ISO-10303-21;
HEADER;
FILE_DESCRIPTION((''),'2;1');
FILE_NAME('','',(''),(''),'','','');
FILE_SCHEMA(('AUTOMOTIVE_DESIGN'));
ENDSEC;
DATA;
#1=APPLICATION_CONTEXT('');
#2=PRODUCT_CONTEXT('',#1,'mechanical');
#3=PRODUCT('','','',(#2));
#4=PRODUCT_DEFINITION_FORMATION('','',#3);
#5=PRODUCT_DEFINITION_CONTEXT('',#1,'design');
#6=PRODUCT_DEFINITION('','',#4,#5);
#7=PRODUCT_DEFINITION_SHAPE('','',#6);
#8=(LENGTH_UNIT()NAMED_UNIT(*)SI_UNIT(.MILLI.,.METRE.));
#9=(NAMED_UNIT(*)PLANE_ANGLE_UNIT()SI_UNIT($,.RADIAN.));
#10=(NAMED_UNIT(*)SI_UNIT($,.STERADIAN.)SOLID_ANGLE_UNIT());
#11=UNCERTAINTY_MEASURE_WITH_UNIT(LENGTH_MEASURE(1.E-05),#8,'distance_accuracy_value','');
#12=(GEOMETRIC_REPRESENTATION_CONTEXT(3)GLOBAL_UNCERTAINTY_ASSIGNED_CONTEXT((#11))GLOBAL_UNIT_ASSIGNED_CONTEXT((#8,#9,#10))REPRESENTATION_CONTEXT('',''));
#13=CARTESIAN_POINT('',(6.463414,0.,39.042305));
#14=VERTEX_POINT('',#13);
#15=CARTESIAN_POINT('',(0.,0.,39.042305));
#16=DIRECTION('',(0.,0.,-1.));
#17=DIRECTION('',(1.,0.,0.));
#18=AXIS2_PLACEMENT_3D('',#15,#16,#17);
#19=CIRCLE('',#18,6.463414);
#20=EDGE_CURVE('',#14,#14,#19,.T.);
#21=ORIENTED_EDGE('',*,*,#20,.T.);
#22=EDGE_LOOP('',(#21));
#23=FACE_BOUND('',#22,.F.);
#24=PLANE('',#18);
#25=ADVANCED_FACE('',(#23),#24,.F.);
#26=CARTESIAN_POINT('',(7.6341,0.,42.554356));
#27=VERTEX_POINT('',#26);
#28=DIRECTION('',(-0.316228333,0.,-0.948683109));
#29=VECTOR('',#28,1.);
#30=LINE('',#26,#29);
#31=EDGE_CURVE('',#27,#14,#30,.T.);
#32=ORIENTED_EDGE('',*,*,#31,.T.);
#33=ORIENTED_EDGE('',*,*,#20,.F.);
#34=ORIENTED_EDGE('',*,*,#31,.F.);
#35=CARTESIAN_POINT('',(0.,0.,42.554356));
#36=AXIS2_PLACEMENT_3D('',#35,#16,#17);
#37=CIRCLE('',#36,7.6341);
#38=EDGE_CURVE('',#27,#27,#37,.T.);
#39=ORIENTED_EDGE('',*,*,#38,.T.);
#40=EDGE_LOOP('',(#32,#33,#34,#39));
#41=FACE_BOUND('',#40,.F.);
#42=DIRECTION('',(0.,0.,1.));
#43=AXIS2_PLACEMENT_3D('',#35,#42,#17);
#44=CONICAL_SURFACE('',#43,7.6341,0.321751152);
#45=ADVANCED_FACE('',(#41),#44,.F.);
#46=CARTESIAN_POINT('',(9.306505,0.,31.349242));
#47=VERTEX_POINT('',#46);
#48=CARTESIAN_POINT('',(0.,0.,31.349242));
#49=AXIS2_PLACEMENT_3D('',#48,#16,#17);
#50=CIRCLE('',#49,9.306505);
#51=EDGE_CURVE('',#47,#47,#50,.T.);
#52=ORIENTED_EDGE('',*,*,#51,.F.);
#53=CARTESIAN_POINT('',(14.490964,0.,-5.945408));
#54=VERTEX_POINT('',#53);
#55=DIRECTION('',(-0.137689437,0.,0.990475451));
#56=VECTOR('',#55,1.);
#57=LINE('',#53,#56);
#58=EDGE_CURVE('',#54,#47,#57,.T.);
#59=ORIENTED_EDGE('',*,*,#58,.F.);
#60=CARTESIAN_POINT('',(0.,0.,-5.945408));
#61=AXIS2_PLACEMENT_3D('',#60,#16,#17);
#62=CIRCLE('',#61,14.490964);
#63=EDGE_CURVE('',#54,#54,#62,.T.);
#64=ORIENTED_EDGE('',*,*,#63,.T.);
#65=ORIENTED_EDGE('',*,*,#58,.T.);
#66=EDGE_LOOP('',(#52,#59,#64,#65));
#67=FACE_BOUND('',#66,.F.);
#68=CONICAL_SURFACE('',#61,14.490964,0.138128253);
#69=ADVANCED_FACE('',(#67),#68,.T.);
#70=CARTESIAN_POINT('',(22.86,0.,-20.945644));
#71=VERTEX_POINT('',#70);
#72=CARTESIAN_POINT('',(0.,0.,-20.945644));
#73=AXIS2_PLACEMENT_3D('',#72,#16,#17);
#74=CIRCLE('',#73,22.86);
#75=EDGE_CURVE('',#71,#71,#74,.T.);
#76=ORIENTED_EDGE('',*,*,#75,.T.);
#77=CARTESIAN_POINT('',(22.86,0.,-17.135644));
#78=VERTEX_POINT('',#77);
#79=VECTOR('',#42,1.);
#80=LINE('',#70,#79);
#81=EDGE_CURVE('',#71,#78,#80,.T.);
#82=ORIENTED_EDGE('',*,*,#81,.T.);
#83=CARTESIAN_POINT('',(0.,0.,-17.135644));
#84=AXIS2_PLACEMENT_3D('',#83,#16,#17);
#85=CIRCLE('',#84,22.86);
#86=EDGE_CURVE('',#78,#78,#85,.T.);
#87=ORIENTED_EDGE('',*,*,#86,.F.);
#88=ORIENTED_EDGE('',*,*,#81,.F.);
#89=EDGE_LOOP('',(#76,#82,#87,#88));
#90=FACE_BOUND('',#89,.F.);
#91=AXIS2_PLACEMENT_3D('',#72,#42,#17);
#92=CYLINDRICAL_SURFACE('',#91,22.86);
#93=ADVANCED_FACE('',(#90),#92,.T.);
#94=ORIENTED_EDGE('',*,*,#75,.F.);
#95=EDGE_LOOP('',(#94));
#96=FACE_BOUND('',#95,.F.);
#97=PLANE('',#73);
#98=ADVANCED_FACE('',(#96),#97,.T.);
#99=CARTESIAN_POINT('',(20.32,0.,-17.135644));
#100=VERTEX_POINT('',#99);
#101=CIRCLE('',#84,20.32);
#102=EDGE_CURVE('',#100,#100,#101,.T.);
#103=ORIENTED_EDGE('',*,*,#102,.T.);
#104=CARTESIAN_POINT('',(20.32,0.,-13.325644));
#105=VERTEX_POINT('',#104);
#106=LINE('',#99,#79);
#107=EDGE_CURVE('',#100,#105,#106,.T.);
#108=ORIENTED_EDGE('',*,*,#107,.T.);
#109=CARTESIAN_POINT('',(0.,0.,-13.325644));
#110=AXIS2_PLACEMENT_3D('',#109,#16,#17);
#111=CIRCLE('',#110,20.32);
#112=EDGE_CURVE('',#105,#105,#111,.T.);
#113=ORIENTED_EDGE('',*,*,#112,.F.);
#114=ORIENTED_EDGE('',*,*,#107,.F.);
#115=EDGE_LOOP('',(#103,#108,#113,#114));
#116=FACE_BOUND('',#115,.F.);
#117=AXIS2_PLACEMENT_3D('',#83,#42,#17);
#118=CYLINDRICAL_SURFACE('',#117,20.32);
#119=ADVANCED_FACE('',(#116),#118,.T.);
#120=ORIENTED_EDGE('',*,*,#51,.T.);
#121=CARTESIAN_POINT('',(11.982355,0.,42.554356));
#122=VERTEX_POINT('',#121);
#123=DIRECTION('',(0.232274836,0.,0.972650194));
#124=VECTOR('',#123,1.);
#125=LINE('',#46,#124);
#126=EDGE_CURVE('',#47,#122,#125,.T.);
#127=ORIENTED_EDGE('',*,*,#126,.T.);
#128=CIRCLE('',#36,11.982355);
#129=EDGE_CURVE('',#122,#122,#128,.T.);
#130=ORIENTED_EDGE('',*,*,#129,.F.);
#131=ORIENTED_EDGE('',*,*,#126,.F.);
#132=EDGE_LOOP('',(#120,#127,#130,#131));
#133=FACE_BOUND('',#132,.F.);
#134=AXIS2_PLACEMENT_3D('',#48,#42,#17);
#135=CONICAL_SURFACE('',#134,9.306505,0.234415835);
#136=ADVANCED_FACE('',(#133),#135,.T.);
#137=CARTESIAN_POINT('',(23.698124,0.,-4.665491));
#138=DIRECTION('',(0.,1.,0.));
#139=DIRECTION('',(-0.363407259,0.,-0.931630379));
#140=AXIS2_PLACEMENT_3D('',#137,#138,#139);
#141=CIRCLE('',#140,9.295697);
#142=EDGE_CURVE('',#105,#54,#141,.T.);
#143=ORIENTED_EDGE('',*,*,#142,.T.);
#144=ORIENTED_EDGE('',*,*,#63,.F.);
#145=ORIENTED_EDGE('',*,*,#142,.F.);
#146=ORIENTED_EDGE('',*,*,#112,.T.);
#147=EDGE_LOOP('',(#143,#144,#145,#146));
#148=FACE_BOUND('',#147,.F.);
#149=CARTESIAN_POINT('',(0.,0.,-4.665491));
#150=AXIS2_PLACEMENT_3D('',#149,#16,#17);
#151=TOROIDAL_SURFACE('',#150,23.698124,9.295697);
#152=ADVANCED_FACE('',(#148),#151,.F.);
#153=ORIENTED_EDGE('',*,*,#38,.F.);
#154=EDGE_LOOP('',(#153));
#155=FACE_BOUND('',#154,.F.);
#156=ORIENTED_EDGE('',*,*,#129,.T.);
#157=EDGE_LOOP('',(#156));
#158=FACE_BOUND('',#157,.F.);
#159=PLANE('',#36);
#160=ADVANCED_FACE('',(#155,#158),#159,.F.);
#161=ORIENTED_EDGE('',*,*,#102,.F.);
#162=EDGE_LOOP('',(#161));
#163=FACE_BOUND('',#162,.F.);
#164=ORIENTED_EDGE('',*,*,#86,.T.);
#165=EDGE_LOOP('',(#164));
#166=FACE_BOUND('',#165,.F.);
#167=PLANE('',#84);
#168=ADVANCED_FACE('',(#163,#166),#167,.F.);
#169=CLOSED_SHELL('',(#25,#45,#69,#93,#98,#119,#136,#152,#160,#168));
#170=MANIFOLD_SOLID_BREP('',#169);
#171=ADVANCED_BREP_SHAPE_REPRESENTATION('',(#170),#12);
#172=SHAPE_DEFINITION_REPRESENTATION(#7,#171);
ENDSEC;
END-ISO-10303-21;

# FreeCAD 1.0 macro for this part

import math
import FreeCAD as App
import Part
import Sketcher
from FreeCAD import Vector
Q = App.Units.Quantity

doc = App.newDocument("Part")
body = doc.addObject("PartDesign::Body", "Body")

# Sketch on XZ plane
sketch1 = doc.addObject("Sketcher::SketchObject", "Sketch")
body.addObject(sketch1)
sketch1.AttachmentSupport = (doc.XZ_Plane, [""])
sketch1.MapMode = "FlatFace"
sketch1.addGeometry([
    Part.LineSegment(Vector(6.463414, 39.042305, 0), Vector(0, 39.042305, 0)),  # 0
    Part.LineSegment(Vector(0, 39.042305, 0), Vector(0, -20.945644, 0)),  # 1
    Part.LineSegment(Vector(0, -20.945644, 0), Vector(22.86, -20.945644, 0)),  # 2
    Part.LineSegment(Vector(22.86, -20.945644, 0), Vector(22.86, -17.135644, 0)),  # 3
    Part.LineSegment(Vector(22.86, -17.135644, 0), Vector(20.32, -17.135644, 0)),  # 4
    Part.LineSegment(Vector(20.32, -17.135644, 0), Vector(20.32, -13.325644, 0)),  # 5
    Part.ArcOfCircle(Part.Circle(Vector(23.698124, -4.665491, 0), Vector(0, 0, 1), 9.295697), math.radians(-172.085845), math.radians(-111.309596)),  # 6
    Part.LineSegment(Vector(14.490964, -5.945408, 0), Vector(9.306505, 31.349242, 0)),  # 7
    Part.LineSegment(Vector(9.306505, 31.349242, 0), Vector(11.982355, 42.554356, 0)),  # 8
    Part.LineSegment(Vector(11.982355, 42.554356, 0), Vector(7.6341, 42.554356, 0)),  # 9
    Part.LineSegment(Vector(7.6341, 42.554356, 0), Vector(6.463414, 39.042305, 0)),  # 10
], False)
sketch1.addConstraint([
    Sketcher.Constraint("Coincident", 0, 2, 1, 1),
    Sketcher.Constraint("Coincident", 1, 2, 2, 1),
    Sketcher.Constraint("Coincident", 2, 2, 3, 1),
    Sketcher.Constraint("Coincident", 3, 2, 4, 1),
    Sketcher.Constraint("Coincident", 4, 2, 5, 1),
    Sketcher.Constraint("Coincident", 5, 2, 6, 2),
    Sketcher.Constraint("Coincident", 6, 1, 7, 1),
    Sketcher.Constraint("Coincident", 7, 2, 8, 1),
    Sketcher.Constraint("Coincident", 8, 2, 9, 1),
    Sketcher.Constraint("Coincident", 9, 2, 10, 1),
    Sketcher.Constraint("Coincident", 10, 2, 0, 1),
    Sketcher.Constraint("Horizontal", 0),
    Sketcher.Constraint("Vertical", 1),
    Sketcher.Constraint("Horizontal", 2),
    Sketcher.Constraint("Vertical", 3),
    Sketcher.Constraint("Horizontal", 4),
    Sketcher.Constraint("Vertical", 5),
    Sketcher.Constraint("Horizontal", 9),
    Sketcher.Constraint("PointOnObject", 0, 2, -2),
    Sketcher.Constraint("DistanceX", 2, 1, 2, 2, Q("0.9 in")),
    Sketcher.Constraint("DistanceX", 4, 2, 4, 1, Q("0.1 in")),
    Sketcher.Constraint("DistanceY", 3, 1, 3, 2, Q("0.15 in")),
    Sketcher.Constraint("DistanceY", 5, 1, 5, 2, Q("0.15 in")),
    Sketcher.Constraint("DistanceY", 5, 2, 8, 2, Q("2.2 in")),
    Sketcher.Constraint("Radius", 6, 9.295697),
    Sketcher.Constraint("DistanceY", 1, 2, 1, 1, 59.987949),
    Sketcher.Constraint("DistanceX", -1, 1, 9, 2, 7.6341),
    Sketcher.Constraint("Distance", 7, 37.653281),
    Sketcher.Constraint("Distance", 8, 11.520189),
    Sketcher.Constraint("DistanceX", 0, 2, 0, 1, 6.463414),
    Sketcher.Constraint("DistanceX", 9, 2, 9, 1, 4.348255),
    Sketcher.Constraint("DistanceY", 6, 3, -1, 1, 4.665491),
    Sketcher.Constraint("DistanceY", 6, 1, -1, 1, 5.945408),
    Sketcher.Constraint("DistanceY", -1, 1, 7, 2, 31.349242),
])
revolution = doc.addObject("PartDesign::Revolution", "Revolution")
body.addObject(revolution)
revolution.Profile = sketch1
revolution.ReferenceAxis = (sketch1, ["V_Axis"])
revolution.Angle = 360

doc.recompute()
